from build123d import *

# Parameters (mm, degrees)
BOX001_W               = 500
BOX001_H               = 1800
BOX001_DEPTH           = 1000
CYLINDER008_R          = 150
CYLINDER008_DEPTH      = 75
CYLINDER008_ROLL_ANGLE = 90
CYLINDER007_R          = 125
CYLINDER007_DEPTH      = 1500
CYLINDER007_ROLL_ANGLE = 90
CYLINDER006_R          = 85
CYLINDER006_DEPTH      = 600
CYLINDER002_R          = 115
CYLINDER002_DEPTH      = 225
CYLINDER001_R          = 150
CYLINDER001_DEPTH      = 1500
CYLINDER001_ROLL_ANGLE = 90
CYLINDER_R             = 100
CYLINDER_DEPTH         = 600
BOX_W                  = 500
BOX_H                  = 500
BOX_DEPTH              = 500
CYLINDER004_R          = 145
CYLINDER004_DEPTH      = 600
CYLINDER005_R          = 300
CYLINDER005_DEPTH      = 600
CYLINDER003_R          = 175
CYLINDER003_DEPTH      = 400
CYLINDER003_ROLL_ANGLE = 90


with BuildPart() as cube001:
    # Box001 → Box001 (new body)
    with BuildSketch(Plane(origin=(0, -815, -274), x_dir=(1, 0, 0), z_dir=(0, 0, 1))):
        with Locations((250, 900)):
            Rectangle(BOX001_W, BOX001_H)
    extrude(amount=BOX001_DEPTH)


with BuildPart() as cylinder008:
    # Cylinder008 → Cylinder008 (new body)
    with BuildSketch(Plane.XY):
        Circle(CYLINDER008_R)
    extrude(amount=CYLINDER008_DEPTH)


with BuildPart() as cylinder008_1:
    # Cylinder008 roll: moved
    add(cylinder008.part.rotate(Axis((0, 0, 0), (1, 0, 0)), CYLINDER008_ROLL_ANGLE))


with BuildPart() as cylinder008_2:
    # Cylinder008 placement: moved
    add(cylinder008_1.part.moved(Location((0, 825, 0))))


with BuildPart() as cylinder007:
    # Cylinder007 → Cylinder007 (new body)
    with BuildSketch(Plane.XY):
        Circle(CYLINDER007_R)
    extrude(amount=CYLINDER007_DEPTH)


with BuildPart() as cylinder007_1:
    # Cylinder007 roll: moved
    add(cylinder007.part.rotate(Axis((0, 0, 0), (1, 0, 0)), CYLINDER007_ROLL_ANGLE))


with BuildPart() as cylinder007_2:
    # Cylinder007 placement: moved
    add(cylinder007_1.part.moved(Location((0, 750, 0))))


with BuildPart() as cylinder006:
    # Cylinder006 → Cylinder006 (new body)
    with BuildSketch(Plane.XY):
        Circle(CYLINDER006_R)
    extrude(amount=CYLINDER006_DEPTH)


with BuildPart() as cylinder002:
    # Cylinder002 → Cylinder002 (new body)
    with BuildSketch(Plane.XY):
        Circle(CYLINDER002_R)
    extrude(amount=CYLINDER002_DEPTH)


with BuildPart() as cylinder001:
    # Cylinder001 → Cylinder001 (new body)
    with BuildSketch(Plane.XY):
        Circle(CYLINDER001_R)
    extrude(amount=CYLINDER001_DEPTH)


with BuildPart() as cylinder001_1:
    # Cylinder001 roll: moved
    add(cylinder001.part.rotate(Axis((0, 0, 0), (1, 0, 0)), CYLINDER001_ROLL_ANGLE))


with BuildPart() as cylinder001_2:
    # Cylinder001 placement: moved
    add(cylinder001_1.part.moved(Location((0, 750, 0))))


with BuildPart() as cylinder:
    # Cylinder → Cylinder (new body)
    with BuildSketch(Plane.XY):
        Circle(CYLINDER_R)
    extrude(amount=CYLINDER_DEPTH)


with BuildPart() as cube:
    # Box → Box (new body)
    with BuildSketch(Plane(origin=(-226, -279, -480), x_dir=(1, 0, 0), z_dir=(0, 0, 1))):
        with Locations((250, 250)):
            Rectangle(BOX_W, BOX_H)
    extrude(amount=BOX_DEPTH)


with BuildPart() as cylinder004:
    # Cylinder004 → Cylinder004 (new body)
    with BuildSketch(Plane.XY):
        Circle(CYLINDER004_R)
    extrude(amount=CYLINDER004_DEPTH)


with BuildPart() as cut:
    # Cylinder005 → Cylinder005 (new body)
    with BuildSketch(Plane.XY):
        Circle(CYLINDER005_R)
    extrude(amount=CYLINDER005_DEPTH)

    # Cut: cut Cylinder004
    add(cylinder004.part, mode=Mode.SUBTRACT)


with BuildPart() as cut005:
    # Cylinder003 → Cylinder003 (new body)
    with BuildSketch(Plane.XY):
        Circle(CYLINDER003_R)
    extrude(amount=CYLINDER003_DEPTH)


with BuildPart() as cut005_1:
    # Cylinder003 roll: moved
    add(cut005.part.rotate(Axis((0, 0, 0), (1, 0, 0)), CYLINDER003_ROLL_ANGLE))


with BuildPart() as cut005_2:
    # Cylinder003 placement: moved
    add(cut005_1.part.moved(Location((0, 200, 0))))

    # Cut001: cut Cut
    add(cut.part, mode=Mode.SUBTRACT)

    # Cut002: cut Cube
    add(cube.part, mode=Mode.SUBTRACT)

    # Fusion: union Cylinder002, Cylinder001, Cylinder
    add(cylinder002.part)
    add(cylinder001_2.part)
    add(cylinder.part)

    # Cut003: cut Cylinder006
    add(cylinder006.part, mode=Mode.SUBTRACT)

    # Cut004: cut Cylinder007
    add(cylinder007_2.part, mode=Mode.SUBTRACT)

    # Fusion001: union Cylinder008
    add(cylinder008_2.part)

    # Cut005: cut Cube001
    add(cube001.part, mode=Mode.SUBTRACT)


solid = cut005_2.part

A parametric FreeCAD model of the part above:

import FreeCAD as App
import Part
import Sketcher
Q = App.Units.Quantity


def add_polygon(sketch, points):
    """Adds a closed chain of lines whose ends are joined by coincident constraints."""
    first, n = sketch.GeometryCount, len(points)
    for a, b in zip(points, points[1:] + points[:1]):
        sketch.addGeometry(Part.LineSegment(App.Vector(*a, 0), App.Vector(*b, 0)), False)
    for i in range(n):
        sketch.addConstraint(Sketcher.Constraint("Coincident", first + i, 2, first + (i + 1) % n, 1))

doc = App.newDocument("Part")
body = doc.addObject("PartDesign::Body", "Body")

# Sketch on XY plane
sketch1 = body.newObject("Sketcher::SketchObject", "Sketch")
sketch1.AttachmentSupport = (doc.getObject("XY_Plane"), [""])
sketch1.MapMode = "FlatFace"
sketch1.AttachmentOffset = App.Placement(App.Vector(0, 0, -274), App.Rotation())
add_polygon(sketch1, [(0, 985), (0, -815), (500, -815), (500, 985)])  # lines 0-3
sketch1.addConstraint([
    Sketcher.Constraint("Vertical", 0),
    Sketcher.Constraint("Horizontal", 1),
    Sketcher.Constraint("Vertical", 2),
    Sketcher.Constraint("Horizontal", 3),
    Sketcher.Constraint("PointOnObject", 0, 2, -2),
    Sketcher.Constraint("DistanceX", 1, 1, 1, 2, Q("500 mm")),
    Sketcher.Constraint("DistanceY", 0, 2, 0, 1, Q("1800 mm")),
    Sketcher.Constraint("DistanceY", 0, 2, -1, 1, Q("815 mm")),
])
pad1 = body.newObject("PartDesign::Pad", "Pad")
pad1.Profile = sketch1
pad1.Length = 1000
body2 = doc.addObject("PartDesign::Body", "Body001")

# Sketch on XY plane
sketch2 = body2.newObject("Sketcher::SketchObject", "Sketch001")
sketch2.AttachmentSupport = (doc.getObject("XY_Plane001"), [""])
sketch2.MapMode = "FlatFace"
sketch2.addGeometry(Part.Circle(App.Vector(0, 0, 0), App.Vector(0, 0, 1), 150), False)
sketch2.addConstraint([
    Sketcher.Constraint("Coincident", 0, 3, -1, 1),
    Sketcher.Constraint("Diameter", 0, Q("300 mm")),
])
pad2 = body2.newObject("PartDesign::Pad", "Pad001")
pad2.Profile = sketch2
pad2.Length = 75
body3 = doc.addObject("PartDesign::Body", "Body002")
doc.recompute()

body2.Placement = App.Placement(App.Vector(0, 0, 0), App.Rotation(App.Vector(1, 0, 0), 90))
boolean = body3.newObject("PartDesign::Boolean", "Boolean")
boolean.Type = "Fuse"
boolean.addObjects([body2])
body4 = doc.addObject("PartDesign::Body", "Body003")
doc.recompute()

body3.Placement = App.Placement(App.Vector(0, 825, 0), App.Rotation(App.Vector(0, 0, 1), 0))
boolean2 = body4.newObject("PartDesign::Boolean", "Boolean001")
boolean2.Type = "Fuse"
boolean2.addObjects([body3])
body5 = doc.addObject("PartDesign::Body", "Body004")

# Sketch on XY plane
sketch3 = body5.newObject("Sketcher::SketchObject", "Sketch002")
sketch3.AttachmentSupport = (doc.getObject("XY_Plane004"), [""])
sketch3.MapMode = "FlatFace"
sketch3.addGeometry(Part.Circle(App.Vector(0, 0, 0), App.Vector(0, 0, 1), 125), False)
sketch3.addConstraint([
    Sketcher.Constraint("Coincident", 0, 3, -1, 1),
    Sketcher.Constraint("Diameter", 0, Q("250 mm")),
])
pad3 = body5.newObject("PartDesign::Pad", "Pad002")
pad3.Profile = sketch3
pad3.Length = 1500
body6 = doc.addObject("PartDesign::Body", "Body005")
doc.recompute()

body5.Placement = App.Placement(App.Vector(0, 0, 0), App.Rotation(App.Vector(1, 0, 0), 90))
boolean3 = body6.newObject("PartDesign::Boolean", "Boolean002")
boolean3.Type = "Fuse"
boolean3.addObjects([body5])
body7 = doc.addObject("PartDesign::Body", "Body006")
doc.recompute()

body6.Placement = App.Placement(App.Vector(0, 750, 0), App.Rotation(App.Vector(0, 0, 1), 0))
boolean4 = body7.newObject("PartDesign::Boolean", "Boolean003")
boolean4.Type = "Fuse"
boolean4.addObjects([body6])
body8 = doc.addObject("PartDesign::Body", "Body007")

# Sketch on XY plane
sketch4 = body8.newObject("Sketcher::SketchObject", "Sketch003")
sketch4.AttachmentSupport = (doc.getObject("XY_Plane007"), [""])
sketch4.MapMode = "FlatFace"
sketch4.addGeometry(Part.Circle(App.Vector(0, 0, 0), App.Vector(0, 0, 1), 85), False)
sketch4.addConstraint([
    Sketcher.Constraint("Coincident", 0, 3, -1, 1),
    Sketcher.Constraint("Diameter", 0, Q("170 mm")),
])
pad4 = body8.newObject("PartDesign::Pad", "Pad003")
pad4.Profile = sketch4
pad4.Length = 600
body9 = doc.addObject("PartDesign::Body", "Body008")

# Sketch on XY plane
sketch5 = body9.newObject("Sketcher::SketchObject", "Sketch004")
sketch5.AttachmentSupport = (doc.getObject("XY_Plane008"), [""])
sketch5.MapMode = "FlatFace"
sketch5.addGeometry(Part.Circle(App.Vector(0, 0, 0), App.Vector(0, 0, 1), 115), False)
sketch5.addConstraint([
    Sketcher.Constraint("Coincident", 0, 3, -1, 1),
    Sketcher.Constraint("Diameter", 0, Q("230 mm")),
])
pad5 = body9.newObject("PartDesign::Pad", "Pad004")
pad5.Profile = sketch5
pad5.Length = 225
body10 = doc.addObject("PartDesign::Body", "Body009")

# Sketch on XY plane
sketch6 = body10.newObject("Sketcher::SketchObject", "Sketch005")
sketch6.AttachmentSupport = (doc.getObject("XY_Plane009"), [""])
sketch6.MapMode = "FlatFace"
sketch6.addGeometry(Part.Circle(App.Vector(0, 0, 0), App.Vector(0, 0, 1), 150), False)
sketch6.addConstraint([
    Sketcher.Constraint("Coincident", 0, 3, -1, 1),
    Sketcher.Constraint("Diameter", 0, Q("300 mm")),
])
pad6 = body10.newObject("PartDesign::Pad", "Pad005")
pad6.Profile = sketch6
pad6.Length = 1500
body11 = doc.addObject("PartDesign::Body", "Body010")
doc.recompute()

body10.Placement = App.Placement(App.Vector(0, 0, 0), App.Rotation(App.Vector(1, 0, 0), 90))
boolean5 = body11.newObject("PartDesign::Boolean", "Boolean004")
boolean5.Type = "Fuse"
boolean5.addObjects([body10])
body12 = doc.addObject("PartDesign::Body", "Body011")
doc.recompute()

body11.Placement = App.Placement(App.Vector(0, 750, 0), App.Rotation(App.Vector(0, 0, 1), 0))
boolean6 = body12.newObject("PartDesign::Boolean", "Boolean005")
boolean6.Type = "Fuse"
boolean6.addObjects([body11])
body13 = doc.addObject("PartDesign::Body", "Body012")

# Sketch on XY plane
sketch7 = body13.newObject("Sketcher::SketchObject", "Sketch006")
sketch7.AttachmentSupport = (doc.getObject("XY_Plane012"), [""])
sketch7.MapMode = "FlatFace"
sketch7.addGeometry(Part.Circle(App.Vector(0, 0, 0), App.Vector(0, 0, 1), 100), False)
sketch7.addConstraint([
    Sketcher.Constraint("Coincident", 0, 3, -1, 1),
    Sketcher.Constraint("Diameter", 0, Q("200 mm")),
])
pad7 = body13.newObject("PartDesign::Pad", "Pad006")
pad7.Profile = sketch7
pad7.Length = 600
body14 = doc.addObject("PartDesign::Body", "Body013")

# Sketch on XY plane
sketch8 = body14.newObject("Sketcher::SketchObject", "Sketch007")
sketch8.AttachmentSupport = (doc.getObject("XY_Plane013"), [""])
sketch8.MapMode = "FlatFace"
sketch8.AttachmentOffset = App.Placement(App.Vector(0, 0, -480), App.Rotation())
add_polygon(sketch8, [(-226, 221), (-226, -279), (274, -279), (274, 221)])  # lines 0-3
sketch8.addConstraint([
    Sketcher.Constraint("Vertical", 0),
    Sketcher.Constraint("Horizontal", 1),
    Sketcher.Constraint("Vertical", 2),
    Sketcher.Constraint("Horizontal", 3),
    Sketcher.Constraint("Equal", 3, 0),
    Sketcher.Constraint("DistanceX", 1, 1, 1, 2, Q("500 mm")),
    Sketcher.Constraint("DistanceX", 0, 2, -1, 1, Q("226 mm")),
    Sketcher.Constraint("DistanceY", 0, 2, -1, 1, Q("279 mm")),
])
pad8 = body14.newObject("PartDesign::Pad", "Pad007")
pad8.Profile = sketch8
pad8.Length = 500
body15 = doc.addObject("PartDesign::Body", "Body014")

# Sketch on XY plane
sketch9 = body15.newObject("Sketcher::SketchObject", "Sketch008")
sketch9.AttachmentSupport = (doc.getObject("XY_Plane014"), [""])
sketch9.MapMode = "FlatFace"
sketch9.addGeometry(Part.Circle(App.Vector(0, 0, 0), App.Vector(0, 0, 1), 145), False)
sketch9.addConstraint([
    Sketcher.Constraint("Coincident", 0, 3, -1, 1),
    Sketcher.Constraint("Diameter", 0, Q("290 mm")),
])
pad9 = body15.newObject("PartDesign::Pad", "Pad008")
pad9.Profile = sketch9
pad9.Length = 600
body16 = doc.addObject("PartDesign::Body", "Body015")

# Sketch on XY plane
sketch10 = body16.newObject("Sketcher::SketchObject", "Sketch009")
sketch10.AttachmentSupport = (doc.getObject("XY_Plane015"), [""])
sketch10.MapMode = "FlatFace"
sketch10.addGeometry(Part.Circle(App.Vector(0, 0, 0), App.Vector(0, 0, 1), 300), False)
sketch10.addConstraint([
    Sketcher.Constraint("Coincident", 0, 3, -1, 1),
    Sketcher.Constraint("Diameter", 0, Q("600 mm")),
])
pad10 = body16.newObject("PartDesign::Pad", "Pad009")
pad10.Profile = sketch10
pad10.Length = 600
doc.recompute()

boolean7 = body16.newObject("PartDesign::Boolean", "Boolean006")
boolean7.Type = "Cut"
boolean7.addObjects([body15])
body17 = doc.addObject("PartDesign::Body", "Body016")

# Sketch on XY plane
sketch11 = body17.newObject("Sketcher::SketchObject", "Sketch010")
sketch11.AttachmentSupport = (doc.getObject("XY_Plane016"), [""])
sketch11.MapMode = "FlatFace"
sketch11.addGeometry(Part.Circle(App.Vector(0, 0, 0), App.Vector(0, 0, 1), 175), False)
sketch11.addConstraint([
    Sketcher.Constraint("Coincident", 0, 3, -1, 1),
    Sketcher.Constraint("Diameter", 0, Q("350 mm")),
])
pad11 = body17.newObject("PartDesign::Pad", "Pad010")
pad11.Profile = sketch11
pad11.Length = 400
body18 = doc.addObject("PartDesign::Body", "Body017")
doc.recompute()

body17.Placement = App.Placement(App.Vector(0, 0, 0), App.Rotation(App.Vector(1, 0, 0), 90))
boolean8 = body18.newObject("PartDesign::Boolean", "Boolean007")
boolean8.Type = "Fuse"
boolean8.addObjects([body17])
body19 = doc.addObject("PartDesign::Body", "Body018")
doc.recompute()

body18.Placement = App.Placement(App.Vector(0, 200, 0), App.Rotation(App.Vector(0, 0, 1), 0))
boolean9 = body19.newObject("PartDesign::Boolean", "Boolean008")
boolean9.Type = "Fuse"
boolean9.addObjects([body18])
doc.recompute()

boolean10 = body19.newObject("PartDesign::Boolean", "Boolean009")
boolean10.Type = "Cut"
boolean10.addObjects([body16])
doc.recompute()

boolean11 = body19.newObject("PartDesign::Boolean", "Boolean010")
boolean11.Type = "Cut"
boolean11.addObjects([body14])
doc.recompute()

boolean12 = body19.newObject("PartDesign::Boolean", "Boolean011")
boolean12.Type = "Fuse"
boolean12.addObjects([body9])
doc.recompute()

boolean13 = body19.newObject("PartDesign::Boolean", "Boolean012")
boolean13.Type = "Fuse"
boolean13.addObjects([body12])
doc.recompute()

boolean14 = body19.newObject("PartDesign::Boolean", "Boolean013")
boolean14.Type = "Fuse"
boolean14.addObjects([body13])
doc.recompute()

boolean15 = body19.newObject("PartDesign::Boolean", "Boolean014")
boolean15.Type = "Cut"
boolean15.addObjects([body8])
doc.recompute()

boolean16 = body19.newObject("PartDesign::Boolean", "Boolean015")
boolean16.Type = "Cut"
boolean16.addObjects([body7])
doc.recompute()

boolean17 = body19.newObject("PartDesign::Boolean", "Boolean016")
boolean17.Type = "Fuse"
boolean17.addObjects([body4])
doc.recompute()

boolean18 = body19.newObject("PartDesign::Boolean", "Boolean017")
boolean18.Type = "Cut"
boolean18.addObjects([body])

doc.recompute()
